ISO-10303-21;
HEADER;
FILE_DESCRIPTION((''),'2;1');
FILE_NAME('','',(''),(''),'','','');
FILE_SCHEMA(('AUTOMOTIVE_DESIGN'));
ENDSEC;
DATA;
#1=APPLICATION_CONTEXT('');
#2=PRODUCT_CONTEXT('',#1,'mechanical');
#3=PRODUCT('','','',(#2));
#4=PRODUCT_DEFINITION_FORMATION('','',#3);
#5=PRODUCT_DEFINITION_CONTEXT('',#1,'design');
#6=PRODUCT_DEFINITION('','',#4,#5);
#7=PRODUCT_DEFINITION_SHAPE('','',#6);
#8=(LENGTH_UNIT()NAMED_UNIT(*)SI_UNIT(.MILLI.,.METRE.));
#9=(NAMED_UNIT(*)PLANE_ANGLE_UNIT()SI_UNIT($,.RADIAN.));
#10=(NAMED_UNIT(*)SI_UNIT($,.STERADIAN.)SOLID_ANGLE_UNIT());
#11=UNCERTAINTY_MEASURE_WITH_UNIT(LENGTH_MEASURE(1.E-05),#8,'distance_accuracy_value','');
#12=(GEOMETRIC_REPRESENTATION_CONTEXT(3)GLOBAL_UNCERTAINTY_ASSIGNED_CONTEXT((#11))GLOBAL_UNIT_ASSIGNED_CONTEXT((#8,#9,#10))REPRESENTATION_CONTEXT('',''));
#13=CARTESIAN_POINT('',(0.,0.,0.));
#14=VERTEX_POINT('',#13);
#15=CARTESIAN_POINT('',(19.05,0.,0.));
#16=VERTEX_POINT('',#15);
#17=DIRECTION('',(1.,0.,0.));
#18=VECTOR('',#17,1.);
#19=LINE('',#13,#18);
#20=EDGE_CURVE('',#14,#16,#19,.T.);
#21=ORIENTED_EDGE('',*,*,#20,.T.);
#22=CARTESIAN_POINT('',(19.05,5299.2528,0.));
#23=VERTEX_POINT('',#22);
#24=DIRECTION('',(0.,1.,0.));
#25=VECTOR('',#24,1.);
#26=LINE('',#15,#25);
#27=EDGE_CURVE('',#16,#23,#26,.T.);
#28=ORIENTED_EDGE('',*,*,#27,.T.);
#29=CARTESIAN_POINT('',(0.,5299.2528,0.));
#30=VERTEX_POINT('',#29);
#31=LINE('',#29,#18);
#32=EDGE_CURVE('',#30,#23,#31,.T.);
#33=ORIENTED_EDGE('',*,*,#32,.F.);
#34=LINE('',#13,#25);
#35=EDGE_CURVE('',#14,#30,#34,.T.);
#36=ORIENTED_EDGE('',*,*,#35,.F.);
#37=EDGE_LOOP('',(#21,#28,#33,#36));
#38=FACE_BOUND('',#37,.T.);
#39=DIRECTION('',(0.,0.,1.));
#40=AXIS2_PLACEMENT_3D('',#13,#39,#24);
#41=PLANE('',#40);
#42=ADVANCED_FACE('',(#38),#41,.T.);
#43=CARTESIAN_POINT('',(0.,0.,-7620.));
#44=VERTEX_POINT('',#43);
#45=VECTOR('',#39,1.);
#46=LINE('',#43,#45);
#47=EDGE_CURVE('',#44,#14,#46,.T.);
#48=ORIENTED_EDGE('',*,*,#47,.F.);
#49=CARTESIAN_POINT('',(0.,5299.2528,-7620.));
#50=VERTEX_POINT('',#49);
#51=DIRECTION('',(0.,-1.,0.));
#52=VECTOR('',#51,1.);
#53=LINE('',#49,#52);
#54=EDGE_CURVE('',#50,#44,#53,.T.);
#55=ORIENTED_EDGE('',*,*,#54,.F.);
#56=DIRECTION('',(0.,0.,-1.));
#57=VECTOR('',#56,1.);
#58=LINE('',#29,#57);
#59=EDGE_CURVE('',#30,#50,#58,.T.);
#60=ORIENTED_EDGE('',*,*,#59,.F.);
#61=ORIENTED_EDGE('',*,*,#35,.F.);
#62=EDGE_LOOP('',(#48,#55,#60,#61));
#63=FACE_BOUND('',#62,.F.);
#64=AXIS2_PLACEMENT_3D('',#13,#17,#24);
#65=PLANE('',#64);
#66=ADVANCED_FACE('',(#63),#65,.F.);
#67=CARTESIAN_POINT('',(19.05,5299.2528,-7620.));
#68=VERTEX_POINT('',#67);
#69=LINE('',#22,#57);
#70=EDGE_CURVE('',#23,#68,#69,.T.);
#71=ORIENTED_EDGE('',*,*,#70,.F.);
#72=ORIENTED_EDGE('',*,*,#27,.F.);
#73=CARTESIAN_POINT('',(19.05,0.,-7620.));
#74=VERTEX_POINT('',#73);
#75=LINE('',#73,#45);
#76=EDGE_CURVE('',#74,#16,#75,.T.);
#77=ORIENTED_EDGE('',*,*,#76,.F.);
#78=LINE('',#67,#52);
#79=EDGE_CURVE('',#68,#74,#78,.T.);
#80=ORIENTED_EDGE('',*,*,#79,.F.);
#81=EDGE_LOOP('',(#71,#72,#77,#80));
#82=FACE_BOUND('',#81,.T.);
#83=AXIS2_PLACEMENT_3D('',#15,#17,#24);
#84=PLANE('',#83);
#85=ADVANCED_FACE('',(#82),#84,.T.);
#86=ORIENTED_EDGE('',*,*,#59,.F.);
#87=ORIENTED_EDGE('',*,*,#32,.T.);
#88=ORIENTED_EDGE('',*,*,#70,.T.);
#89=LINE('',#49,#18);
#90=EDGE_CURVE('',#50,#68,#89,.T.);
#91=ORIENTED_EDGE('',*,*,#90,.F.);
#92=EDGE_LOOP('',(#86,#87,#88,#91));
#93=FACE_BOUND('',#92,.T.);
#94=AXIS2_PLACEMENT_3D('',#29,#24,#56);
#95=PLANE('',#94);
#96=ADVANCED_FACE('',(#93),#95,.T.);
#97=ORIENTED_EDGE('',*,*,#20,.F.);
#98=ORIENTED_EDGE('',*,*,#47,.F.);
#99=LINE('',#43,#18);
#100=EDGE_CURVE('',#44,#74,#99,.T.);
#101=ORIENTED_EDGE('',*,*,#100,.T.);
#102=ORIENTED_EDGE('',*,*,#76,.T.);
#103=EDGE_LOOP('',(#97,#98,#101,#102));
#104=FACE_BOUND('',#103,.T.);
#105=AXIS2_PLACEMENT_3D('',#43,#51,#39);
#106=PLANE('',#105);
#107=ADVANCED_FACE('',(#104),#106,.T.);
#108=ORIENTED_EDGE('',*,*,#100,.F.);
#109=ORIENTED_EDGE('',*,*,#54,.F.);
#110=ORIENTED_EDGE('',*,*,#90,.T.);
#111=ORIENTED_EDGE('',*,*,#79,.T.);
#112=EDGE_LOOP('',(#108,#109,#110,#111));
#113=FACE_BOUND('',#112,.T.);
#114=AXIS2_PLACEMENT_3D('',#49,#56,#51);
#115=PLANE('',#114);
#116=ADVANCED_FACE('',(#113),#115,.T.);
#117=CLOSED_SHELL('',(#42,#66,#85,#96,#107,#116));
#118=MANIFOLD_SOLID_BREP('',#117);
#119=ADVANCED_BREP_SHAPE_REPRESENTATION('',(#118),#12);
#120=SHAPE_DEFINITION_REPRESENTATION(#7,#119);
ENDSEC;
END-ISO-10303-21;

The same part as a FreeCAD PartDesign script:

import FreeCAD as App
import Part
import Sketcher
Q = App.Units.Quantity


def add_polygon(sketch, points):
    """Adds a closed chain of lines whose ends are joined by coincident constraints."""
    first, n = sketch.GeometryCount, len(points)
    for a, b in zip(points, points[1:] + points[:1]):
        sketch.addGeometry(Part.LineSegment(App.Vector(*a, 0), App.Vector(*b, 0)), False)
    for i in range(n):
        sketch.addConstraint(Sketcher.Constraint("Coincident", first + i, 2, first + (i + 1) % n, 1))

doc = App.newDocument("Part")
params = doc.addObject("Spreadsheet::Sheet", "Params")
for row, (alias, value) in enumerate([
    ("sketch1_height", "300 in"),
    ("sketch1_width", "208.632 in"),
    ("pad1_length", "0.75 in"),
], start=1):
    params.set(f"A{row}", alias)
    params.set(f"B{row}", "=" + value)
    params.setAlias(f"B{row}", alias)

body = doc.addObject("PartDesign::Body", "Body")

# Sketch on YZ plane
sketch1 = body.newObject("Sketcher::SketchObject", "Sketch")
sketch1.AttachmentSupport = (doc.getObject("YZ_Plane"), [""])
sketch1.MapMode = "FlatFace"
add_polygon(sketch1, [(5299, 0), (0, 0), (0, -7620), (5299, -7620)])  # lines 0-3
sketch1.addConstraint(Sketcher.Constraint("Horizontal", 0))
sketch1.addConstraint(Sketcher.Constraint("Vertical", 1))
sketch1.addConstraint(Sketcher.Constraint("Horizontal", 2))
sketch1.addConstraint(Sketcher.Constraint("Vertical", 3))
sketch1.addConstraint(Sketcher.Constraint("Coincident", 0, 2, -1, 1))
sketch1.addConstraint(Sketcher.Constraint("DistanceY", 1, 2, 1, 1, Q("300 in")))
sketch1.addConstraint(Sketcher.Constraint("DistanceX", 0, 2, 0, 1, Q("208.632 in")))
sketch1.setExpression("Constraints[9]", "Params.sketch1_height")
sketch1.setExpression("Constraints[10]", "Params.sketch1_width")
pad1 = body.newObject("PartDesign::Pad", "Pad")
pad1.Profile = sketch1
pad1.setExpression("Length", "Params.pad1_length")

doc.recompute()
